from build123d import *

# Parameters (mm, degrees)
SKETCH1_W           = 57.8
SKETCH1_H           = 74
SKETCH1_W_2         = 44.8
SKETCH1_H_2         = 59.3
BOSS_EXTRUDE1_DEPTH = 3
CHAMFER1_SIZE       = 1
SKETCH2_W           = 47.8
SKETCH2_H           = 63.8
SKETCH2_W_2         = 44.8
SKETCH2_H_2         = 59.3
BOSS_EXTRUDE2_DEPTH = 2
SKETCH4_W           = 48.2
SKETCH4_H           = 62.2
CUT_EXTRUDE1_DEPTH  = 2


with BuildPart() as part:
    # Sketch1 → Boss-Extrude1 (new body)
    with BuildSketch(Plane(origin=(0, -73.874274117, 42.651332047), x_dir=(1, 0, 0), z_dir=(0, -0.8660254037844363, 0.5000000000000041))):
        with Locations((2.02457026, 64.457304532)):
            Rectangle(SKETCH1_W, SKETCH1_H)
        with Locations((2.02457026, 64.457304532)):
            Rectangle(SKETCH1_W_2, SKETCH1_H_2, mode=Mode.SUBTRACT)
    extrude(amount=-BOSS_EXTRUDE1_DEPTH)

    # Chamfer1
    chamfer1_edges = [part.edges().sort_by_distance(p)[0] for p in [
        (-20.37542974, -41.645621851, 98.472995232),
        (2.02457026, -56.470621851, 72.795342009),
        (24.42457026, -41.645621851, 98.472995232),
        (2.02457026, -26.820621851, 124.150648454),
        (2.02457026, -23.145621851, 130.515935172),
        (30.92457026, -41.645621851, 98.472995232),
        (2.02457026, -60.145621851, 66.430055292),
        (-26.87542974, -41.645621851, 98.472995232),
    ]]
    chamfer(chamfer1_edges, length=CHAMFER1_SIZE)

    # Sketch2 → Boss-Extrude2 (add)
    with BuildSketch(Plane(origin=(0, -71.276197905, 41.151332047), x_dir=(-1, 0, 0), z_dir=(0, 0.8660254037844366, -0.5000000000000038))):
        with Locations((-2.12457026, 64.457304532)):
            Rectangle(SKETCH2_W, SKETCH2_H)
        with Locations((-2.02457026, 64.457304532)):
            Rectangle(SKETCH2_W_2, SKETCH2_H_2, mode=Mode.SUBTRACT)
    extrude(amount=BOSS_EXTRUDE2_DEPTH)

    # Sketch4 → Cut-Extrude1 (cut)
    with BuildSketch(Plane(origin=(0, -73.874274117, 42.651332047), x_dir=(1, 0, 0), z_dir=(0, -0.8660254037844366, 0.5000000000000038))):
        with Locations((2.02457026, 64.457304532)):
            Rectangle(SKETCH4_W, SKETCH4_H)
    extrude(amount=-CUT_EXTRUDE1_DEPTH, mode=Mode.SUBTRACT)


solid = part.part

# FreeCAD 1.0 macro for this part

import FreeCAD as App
import Part
import Sketcher
from FreeCAD import Vector


def edges_at(feature, points):
    """Names of the edges that pass closest to the given points."""
    edges = feature.Shape.Edges
    near = lambda p: min(range(len(edges)), key=lambda i: edges[i].distToShape(Part.Vertex(*p))[0])
    return sorted({f"Edge{near(p) + 1}" for p in points})


def add_polygon(sketch, points):
    """Adds a closed chain of lines whose ends are joined by coincident constraints."""
    first, n = sketch.GeometryCount, len(points)
    for a, b in zip(points, points[1:] + points[:1]):
        sketch.addGeometry(Part.LineSegment(App.Vector(*a, 0), App.Vector(*b, 0)), False)
    for i in range(n):
        sketch.addConstraint(Sketcher.Constraint("Coincident", first + i, 2, first + (i + 1) % n, 1))

doc = App.newDocument("Part")
body = doc.addObject("PartDesign::Body", "Body")

# Sketch on an angled plane
sketch1 = doc.addObject("Sketcher::SketchObject", "Sketch")
body.addObject(sketch1)
sketch1.Placement = App.Placement(Vector(0, -73.874274, 42.651332), App.Rotation(Vector(1, 0, 0), Vector(0, 0.5, 0.866025404), Vector(0, -0.866025404, 0.5), "ZXY"))
add_polygon(sketch1, [(-26.87543, 101.457305), (-26.87543, 27.457305), (30.92457, 27.457305), (30.92457, 101.457305)])  # lines 0-3
add_polygon(sketch1, [(24.42457, 34.807305), (-20.37543, 34.807305), (-20.37543, 94.107305), (24.42457, 94.107305)])  # lines 4-7
sketch1.addConstraint(Sketcher.Constraint("Vertical", 0))
sketch1.addConstraint(Sketcher.Constraint("Horizontal", 1))
sketch1.addConstraint(Sketcher.Constraint("Vertical", 2))
sketch1.addConstraint(Sketcher.Constraint("Horizontal", 3))
sketch1.addConstraint(Sketcher.Constraint("Horizontal", 4))
sketch1.addConstraint(Sketcher.Constraint("Vertical", 5))
sketch1.addConstraint(Sketcher.Constraint("Horizontal", 6))
sketch1.addConstraint(Sketcher.Constraint("Vertical", 7))
sketch1.addConstraint(Sketcher.Constraint("DistanceY", 0, 2, 0, 1, 74.0))
sketch1.addConstraint(Sketcher.Constraint("DistanceX", 1, 1, 1, 2, 57.8))
sketch1.addConstraint(Sketcher.Constraint("DistanceX", 4, 2, 4, 1, 44.8))
sketch1.addConstraint(Sketcher.Constraint("DistanceY", 5, 1, 5, 2, 59.3))
sketch1.addConstraint(Sketcher.Constraint("DistanceX", 0, 2, 4, 2, 6.5))
sketch1.addConstraint(Sketcher.Constraint("DistanceY", 0, 2, 4, 2, 7.35))
sketch1.addConstraint(Sketcher.Constraint("DistanceX", 0, 2, -1, 1, 26.87543))
sketch1.addConstraint(Sketcher.Constraint("DistanceY", -1, 1, 0, 2, 27.457305))
pad1 = doc.addObject("PartDesign::Pad", "Pad")
body.addObject(pad1)
pad1.Profile = sketch1
pad1.Length = 3
pad1.Reversed = True
doc.recompute()

chamfer = doc.addObject("PartDesign::Chamfer", "Chamfer")
body.addObject(chamfer)
chamfer.Base = (pad1, edges_at(pad1, [
    (-20.375, -41.646, 98.473),
    (2.025, -56.471, 72.795),
    (24.425, -41.646, 98.473),
    (2.025, -26.821, 124.151),
    (2.025, -23.146, 130.516),
    (30.925, -41.646, 98.473),
    (2.025, -60.146, 66.43),
    (-26.875, -41.646, 98.473),
]))
chamfer.Size = 1

# Sketch on an angled plane
sketch2 = doc.addObject("Sketcher::SketchObject", "Sketch001")
body.addObject(sketch2)
sketch2.Placement = App.Placement(Vector(0, -71.276198, 41.151332), App.Rotation(Vector(-1, 0, 0), Vector(0, 0.5, 0.866025404), Vector(0, 0.866025404, -0.5), "ZXY"))
add_polygon(sketch2, [(-26.02457, 96.357305), (-26.02457, 32.557305), (21.77543, 32.557305), (21.77543, 96.357305)])  # lines 0-3
add_polygon(sketch2, [(20.37543, 34.807305), (-24.42457, 34.807305), (-24.42457, 94.107305), (20.37543, 94.107305)])  # lines 4-7
sketch2.addConstraint(Sketcher.Constraint("Vertical", 0))
sketch2.addConstraint(Sketcher.Constraint("Horizontal", 1))
sketch2.addConstraint(Sketcher.Constraint("Vertical", 2))
sketch2.addConstraint(Sketcher.Constraint("Horizontal", 3))
sketch2.addConstraint(Sketcher.Constraint("Horizontal", 4))
sketch2.addConstraint(Sketcher.Constraint("Vertical", 5))
sketch2.addConstraint(Sketcher.Constraint("Horizontal", 6))
sketch2.addConstraint(Sketcher.Constraint("Vertical", 7))
sketch2.addConstraint(Sketcher.Constraint("DistanceX", 1, 1, 1, 2, 47.8))
sketch2.addConstraint(Sketcher.Constraint("DistanceX", 4, 2, 4, 1, 44.8))
sketch2.addConstraint(Sketcher.Constraint("DistanceY", 0, 2, 0, 1, 63.8))
sketch2.addConstraint(Sketcher.Constraint("DistanceY", 5, 1, 5, 2, 59.3))
sketch2.addConstraint(Sketcher.Constraint("DistanceX", 0, 2, 4, 2, 1.6))
sketch2.addConstraint(Sketcher.Constraint("DistanceY", 0, 2, 4, 2, 2.25))
sketch2.addConstraint(Sketcher.Constraint("DistanceX", 0, 2, -1, 1, 26.02457))
sketch2.addConstraint(Sketcher.Constraint("DistanceY", -1, 1, 0, 2, 32.557305))
pad2 = doc.addObject("PartDesign::Pad", "Pad001")
body.addObject(pad2)
pad2.Profile = sketch2
pad2.Length = 2

# Sketch on an angled plane
sketch3 = doc.addObject("Sketcher::SketchObject", "Sketch002")
body.addObject(sketch3)
sketch3.Placement = App.Placement(Vector(0, -73.874274, 42.651332), App.Rotation(Vector(1, 0, 0), Vector(0, 0.5, 0.866025404), Vector(0, -0.866025404, 0.5), "ZXY"))
add_polygon(sketch3, [(-22.07543, 95.557305), (-22.07543, 33.357305), (26.12457, 33.357305), (26.12457, 95.557305)])  # lines 0-3
sketch3.addConstraint(Sketcher.Constraint("Vertical", 0))
sketch3.addConstraint(Sketcher.Constraint("Horizontal", 1))
sketch3.addConstraint(Sketcher.Constraint("Vertical", 2))
sketch3.addConstraint(Sketcher.Constraint("Horizontal", 3))
sketch3.addConstraint(Sketcher.Constraint("DistanceX", 1, 1, 1, 2, 48.2))
sketch3.addConstraint(Sketcher.Constraint("DistanceY", 0, 2, 0, 1, 62.2))
sketch3.addConstraint(Sketcher.Constraint("DistanceX", 0, 2, -1, 1, 22.07543))
sketch3.addConstraint(Sketcher.Constraint("DistanceY", -1, 1, 0, 2, 33.357305))
pocket1 = doc.addObject("PartDesign::Pocket", "Pocket")
body.addObject(pocket1)
pocket1.Profile = sketch3
pocket1.Length = 2

doc.recompute()
